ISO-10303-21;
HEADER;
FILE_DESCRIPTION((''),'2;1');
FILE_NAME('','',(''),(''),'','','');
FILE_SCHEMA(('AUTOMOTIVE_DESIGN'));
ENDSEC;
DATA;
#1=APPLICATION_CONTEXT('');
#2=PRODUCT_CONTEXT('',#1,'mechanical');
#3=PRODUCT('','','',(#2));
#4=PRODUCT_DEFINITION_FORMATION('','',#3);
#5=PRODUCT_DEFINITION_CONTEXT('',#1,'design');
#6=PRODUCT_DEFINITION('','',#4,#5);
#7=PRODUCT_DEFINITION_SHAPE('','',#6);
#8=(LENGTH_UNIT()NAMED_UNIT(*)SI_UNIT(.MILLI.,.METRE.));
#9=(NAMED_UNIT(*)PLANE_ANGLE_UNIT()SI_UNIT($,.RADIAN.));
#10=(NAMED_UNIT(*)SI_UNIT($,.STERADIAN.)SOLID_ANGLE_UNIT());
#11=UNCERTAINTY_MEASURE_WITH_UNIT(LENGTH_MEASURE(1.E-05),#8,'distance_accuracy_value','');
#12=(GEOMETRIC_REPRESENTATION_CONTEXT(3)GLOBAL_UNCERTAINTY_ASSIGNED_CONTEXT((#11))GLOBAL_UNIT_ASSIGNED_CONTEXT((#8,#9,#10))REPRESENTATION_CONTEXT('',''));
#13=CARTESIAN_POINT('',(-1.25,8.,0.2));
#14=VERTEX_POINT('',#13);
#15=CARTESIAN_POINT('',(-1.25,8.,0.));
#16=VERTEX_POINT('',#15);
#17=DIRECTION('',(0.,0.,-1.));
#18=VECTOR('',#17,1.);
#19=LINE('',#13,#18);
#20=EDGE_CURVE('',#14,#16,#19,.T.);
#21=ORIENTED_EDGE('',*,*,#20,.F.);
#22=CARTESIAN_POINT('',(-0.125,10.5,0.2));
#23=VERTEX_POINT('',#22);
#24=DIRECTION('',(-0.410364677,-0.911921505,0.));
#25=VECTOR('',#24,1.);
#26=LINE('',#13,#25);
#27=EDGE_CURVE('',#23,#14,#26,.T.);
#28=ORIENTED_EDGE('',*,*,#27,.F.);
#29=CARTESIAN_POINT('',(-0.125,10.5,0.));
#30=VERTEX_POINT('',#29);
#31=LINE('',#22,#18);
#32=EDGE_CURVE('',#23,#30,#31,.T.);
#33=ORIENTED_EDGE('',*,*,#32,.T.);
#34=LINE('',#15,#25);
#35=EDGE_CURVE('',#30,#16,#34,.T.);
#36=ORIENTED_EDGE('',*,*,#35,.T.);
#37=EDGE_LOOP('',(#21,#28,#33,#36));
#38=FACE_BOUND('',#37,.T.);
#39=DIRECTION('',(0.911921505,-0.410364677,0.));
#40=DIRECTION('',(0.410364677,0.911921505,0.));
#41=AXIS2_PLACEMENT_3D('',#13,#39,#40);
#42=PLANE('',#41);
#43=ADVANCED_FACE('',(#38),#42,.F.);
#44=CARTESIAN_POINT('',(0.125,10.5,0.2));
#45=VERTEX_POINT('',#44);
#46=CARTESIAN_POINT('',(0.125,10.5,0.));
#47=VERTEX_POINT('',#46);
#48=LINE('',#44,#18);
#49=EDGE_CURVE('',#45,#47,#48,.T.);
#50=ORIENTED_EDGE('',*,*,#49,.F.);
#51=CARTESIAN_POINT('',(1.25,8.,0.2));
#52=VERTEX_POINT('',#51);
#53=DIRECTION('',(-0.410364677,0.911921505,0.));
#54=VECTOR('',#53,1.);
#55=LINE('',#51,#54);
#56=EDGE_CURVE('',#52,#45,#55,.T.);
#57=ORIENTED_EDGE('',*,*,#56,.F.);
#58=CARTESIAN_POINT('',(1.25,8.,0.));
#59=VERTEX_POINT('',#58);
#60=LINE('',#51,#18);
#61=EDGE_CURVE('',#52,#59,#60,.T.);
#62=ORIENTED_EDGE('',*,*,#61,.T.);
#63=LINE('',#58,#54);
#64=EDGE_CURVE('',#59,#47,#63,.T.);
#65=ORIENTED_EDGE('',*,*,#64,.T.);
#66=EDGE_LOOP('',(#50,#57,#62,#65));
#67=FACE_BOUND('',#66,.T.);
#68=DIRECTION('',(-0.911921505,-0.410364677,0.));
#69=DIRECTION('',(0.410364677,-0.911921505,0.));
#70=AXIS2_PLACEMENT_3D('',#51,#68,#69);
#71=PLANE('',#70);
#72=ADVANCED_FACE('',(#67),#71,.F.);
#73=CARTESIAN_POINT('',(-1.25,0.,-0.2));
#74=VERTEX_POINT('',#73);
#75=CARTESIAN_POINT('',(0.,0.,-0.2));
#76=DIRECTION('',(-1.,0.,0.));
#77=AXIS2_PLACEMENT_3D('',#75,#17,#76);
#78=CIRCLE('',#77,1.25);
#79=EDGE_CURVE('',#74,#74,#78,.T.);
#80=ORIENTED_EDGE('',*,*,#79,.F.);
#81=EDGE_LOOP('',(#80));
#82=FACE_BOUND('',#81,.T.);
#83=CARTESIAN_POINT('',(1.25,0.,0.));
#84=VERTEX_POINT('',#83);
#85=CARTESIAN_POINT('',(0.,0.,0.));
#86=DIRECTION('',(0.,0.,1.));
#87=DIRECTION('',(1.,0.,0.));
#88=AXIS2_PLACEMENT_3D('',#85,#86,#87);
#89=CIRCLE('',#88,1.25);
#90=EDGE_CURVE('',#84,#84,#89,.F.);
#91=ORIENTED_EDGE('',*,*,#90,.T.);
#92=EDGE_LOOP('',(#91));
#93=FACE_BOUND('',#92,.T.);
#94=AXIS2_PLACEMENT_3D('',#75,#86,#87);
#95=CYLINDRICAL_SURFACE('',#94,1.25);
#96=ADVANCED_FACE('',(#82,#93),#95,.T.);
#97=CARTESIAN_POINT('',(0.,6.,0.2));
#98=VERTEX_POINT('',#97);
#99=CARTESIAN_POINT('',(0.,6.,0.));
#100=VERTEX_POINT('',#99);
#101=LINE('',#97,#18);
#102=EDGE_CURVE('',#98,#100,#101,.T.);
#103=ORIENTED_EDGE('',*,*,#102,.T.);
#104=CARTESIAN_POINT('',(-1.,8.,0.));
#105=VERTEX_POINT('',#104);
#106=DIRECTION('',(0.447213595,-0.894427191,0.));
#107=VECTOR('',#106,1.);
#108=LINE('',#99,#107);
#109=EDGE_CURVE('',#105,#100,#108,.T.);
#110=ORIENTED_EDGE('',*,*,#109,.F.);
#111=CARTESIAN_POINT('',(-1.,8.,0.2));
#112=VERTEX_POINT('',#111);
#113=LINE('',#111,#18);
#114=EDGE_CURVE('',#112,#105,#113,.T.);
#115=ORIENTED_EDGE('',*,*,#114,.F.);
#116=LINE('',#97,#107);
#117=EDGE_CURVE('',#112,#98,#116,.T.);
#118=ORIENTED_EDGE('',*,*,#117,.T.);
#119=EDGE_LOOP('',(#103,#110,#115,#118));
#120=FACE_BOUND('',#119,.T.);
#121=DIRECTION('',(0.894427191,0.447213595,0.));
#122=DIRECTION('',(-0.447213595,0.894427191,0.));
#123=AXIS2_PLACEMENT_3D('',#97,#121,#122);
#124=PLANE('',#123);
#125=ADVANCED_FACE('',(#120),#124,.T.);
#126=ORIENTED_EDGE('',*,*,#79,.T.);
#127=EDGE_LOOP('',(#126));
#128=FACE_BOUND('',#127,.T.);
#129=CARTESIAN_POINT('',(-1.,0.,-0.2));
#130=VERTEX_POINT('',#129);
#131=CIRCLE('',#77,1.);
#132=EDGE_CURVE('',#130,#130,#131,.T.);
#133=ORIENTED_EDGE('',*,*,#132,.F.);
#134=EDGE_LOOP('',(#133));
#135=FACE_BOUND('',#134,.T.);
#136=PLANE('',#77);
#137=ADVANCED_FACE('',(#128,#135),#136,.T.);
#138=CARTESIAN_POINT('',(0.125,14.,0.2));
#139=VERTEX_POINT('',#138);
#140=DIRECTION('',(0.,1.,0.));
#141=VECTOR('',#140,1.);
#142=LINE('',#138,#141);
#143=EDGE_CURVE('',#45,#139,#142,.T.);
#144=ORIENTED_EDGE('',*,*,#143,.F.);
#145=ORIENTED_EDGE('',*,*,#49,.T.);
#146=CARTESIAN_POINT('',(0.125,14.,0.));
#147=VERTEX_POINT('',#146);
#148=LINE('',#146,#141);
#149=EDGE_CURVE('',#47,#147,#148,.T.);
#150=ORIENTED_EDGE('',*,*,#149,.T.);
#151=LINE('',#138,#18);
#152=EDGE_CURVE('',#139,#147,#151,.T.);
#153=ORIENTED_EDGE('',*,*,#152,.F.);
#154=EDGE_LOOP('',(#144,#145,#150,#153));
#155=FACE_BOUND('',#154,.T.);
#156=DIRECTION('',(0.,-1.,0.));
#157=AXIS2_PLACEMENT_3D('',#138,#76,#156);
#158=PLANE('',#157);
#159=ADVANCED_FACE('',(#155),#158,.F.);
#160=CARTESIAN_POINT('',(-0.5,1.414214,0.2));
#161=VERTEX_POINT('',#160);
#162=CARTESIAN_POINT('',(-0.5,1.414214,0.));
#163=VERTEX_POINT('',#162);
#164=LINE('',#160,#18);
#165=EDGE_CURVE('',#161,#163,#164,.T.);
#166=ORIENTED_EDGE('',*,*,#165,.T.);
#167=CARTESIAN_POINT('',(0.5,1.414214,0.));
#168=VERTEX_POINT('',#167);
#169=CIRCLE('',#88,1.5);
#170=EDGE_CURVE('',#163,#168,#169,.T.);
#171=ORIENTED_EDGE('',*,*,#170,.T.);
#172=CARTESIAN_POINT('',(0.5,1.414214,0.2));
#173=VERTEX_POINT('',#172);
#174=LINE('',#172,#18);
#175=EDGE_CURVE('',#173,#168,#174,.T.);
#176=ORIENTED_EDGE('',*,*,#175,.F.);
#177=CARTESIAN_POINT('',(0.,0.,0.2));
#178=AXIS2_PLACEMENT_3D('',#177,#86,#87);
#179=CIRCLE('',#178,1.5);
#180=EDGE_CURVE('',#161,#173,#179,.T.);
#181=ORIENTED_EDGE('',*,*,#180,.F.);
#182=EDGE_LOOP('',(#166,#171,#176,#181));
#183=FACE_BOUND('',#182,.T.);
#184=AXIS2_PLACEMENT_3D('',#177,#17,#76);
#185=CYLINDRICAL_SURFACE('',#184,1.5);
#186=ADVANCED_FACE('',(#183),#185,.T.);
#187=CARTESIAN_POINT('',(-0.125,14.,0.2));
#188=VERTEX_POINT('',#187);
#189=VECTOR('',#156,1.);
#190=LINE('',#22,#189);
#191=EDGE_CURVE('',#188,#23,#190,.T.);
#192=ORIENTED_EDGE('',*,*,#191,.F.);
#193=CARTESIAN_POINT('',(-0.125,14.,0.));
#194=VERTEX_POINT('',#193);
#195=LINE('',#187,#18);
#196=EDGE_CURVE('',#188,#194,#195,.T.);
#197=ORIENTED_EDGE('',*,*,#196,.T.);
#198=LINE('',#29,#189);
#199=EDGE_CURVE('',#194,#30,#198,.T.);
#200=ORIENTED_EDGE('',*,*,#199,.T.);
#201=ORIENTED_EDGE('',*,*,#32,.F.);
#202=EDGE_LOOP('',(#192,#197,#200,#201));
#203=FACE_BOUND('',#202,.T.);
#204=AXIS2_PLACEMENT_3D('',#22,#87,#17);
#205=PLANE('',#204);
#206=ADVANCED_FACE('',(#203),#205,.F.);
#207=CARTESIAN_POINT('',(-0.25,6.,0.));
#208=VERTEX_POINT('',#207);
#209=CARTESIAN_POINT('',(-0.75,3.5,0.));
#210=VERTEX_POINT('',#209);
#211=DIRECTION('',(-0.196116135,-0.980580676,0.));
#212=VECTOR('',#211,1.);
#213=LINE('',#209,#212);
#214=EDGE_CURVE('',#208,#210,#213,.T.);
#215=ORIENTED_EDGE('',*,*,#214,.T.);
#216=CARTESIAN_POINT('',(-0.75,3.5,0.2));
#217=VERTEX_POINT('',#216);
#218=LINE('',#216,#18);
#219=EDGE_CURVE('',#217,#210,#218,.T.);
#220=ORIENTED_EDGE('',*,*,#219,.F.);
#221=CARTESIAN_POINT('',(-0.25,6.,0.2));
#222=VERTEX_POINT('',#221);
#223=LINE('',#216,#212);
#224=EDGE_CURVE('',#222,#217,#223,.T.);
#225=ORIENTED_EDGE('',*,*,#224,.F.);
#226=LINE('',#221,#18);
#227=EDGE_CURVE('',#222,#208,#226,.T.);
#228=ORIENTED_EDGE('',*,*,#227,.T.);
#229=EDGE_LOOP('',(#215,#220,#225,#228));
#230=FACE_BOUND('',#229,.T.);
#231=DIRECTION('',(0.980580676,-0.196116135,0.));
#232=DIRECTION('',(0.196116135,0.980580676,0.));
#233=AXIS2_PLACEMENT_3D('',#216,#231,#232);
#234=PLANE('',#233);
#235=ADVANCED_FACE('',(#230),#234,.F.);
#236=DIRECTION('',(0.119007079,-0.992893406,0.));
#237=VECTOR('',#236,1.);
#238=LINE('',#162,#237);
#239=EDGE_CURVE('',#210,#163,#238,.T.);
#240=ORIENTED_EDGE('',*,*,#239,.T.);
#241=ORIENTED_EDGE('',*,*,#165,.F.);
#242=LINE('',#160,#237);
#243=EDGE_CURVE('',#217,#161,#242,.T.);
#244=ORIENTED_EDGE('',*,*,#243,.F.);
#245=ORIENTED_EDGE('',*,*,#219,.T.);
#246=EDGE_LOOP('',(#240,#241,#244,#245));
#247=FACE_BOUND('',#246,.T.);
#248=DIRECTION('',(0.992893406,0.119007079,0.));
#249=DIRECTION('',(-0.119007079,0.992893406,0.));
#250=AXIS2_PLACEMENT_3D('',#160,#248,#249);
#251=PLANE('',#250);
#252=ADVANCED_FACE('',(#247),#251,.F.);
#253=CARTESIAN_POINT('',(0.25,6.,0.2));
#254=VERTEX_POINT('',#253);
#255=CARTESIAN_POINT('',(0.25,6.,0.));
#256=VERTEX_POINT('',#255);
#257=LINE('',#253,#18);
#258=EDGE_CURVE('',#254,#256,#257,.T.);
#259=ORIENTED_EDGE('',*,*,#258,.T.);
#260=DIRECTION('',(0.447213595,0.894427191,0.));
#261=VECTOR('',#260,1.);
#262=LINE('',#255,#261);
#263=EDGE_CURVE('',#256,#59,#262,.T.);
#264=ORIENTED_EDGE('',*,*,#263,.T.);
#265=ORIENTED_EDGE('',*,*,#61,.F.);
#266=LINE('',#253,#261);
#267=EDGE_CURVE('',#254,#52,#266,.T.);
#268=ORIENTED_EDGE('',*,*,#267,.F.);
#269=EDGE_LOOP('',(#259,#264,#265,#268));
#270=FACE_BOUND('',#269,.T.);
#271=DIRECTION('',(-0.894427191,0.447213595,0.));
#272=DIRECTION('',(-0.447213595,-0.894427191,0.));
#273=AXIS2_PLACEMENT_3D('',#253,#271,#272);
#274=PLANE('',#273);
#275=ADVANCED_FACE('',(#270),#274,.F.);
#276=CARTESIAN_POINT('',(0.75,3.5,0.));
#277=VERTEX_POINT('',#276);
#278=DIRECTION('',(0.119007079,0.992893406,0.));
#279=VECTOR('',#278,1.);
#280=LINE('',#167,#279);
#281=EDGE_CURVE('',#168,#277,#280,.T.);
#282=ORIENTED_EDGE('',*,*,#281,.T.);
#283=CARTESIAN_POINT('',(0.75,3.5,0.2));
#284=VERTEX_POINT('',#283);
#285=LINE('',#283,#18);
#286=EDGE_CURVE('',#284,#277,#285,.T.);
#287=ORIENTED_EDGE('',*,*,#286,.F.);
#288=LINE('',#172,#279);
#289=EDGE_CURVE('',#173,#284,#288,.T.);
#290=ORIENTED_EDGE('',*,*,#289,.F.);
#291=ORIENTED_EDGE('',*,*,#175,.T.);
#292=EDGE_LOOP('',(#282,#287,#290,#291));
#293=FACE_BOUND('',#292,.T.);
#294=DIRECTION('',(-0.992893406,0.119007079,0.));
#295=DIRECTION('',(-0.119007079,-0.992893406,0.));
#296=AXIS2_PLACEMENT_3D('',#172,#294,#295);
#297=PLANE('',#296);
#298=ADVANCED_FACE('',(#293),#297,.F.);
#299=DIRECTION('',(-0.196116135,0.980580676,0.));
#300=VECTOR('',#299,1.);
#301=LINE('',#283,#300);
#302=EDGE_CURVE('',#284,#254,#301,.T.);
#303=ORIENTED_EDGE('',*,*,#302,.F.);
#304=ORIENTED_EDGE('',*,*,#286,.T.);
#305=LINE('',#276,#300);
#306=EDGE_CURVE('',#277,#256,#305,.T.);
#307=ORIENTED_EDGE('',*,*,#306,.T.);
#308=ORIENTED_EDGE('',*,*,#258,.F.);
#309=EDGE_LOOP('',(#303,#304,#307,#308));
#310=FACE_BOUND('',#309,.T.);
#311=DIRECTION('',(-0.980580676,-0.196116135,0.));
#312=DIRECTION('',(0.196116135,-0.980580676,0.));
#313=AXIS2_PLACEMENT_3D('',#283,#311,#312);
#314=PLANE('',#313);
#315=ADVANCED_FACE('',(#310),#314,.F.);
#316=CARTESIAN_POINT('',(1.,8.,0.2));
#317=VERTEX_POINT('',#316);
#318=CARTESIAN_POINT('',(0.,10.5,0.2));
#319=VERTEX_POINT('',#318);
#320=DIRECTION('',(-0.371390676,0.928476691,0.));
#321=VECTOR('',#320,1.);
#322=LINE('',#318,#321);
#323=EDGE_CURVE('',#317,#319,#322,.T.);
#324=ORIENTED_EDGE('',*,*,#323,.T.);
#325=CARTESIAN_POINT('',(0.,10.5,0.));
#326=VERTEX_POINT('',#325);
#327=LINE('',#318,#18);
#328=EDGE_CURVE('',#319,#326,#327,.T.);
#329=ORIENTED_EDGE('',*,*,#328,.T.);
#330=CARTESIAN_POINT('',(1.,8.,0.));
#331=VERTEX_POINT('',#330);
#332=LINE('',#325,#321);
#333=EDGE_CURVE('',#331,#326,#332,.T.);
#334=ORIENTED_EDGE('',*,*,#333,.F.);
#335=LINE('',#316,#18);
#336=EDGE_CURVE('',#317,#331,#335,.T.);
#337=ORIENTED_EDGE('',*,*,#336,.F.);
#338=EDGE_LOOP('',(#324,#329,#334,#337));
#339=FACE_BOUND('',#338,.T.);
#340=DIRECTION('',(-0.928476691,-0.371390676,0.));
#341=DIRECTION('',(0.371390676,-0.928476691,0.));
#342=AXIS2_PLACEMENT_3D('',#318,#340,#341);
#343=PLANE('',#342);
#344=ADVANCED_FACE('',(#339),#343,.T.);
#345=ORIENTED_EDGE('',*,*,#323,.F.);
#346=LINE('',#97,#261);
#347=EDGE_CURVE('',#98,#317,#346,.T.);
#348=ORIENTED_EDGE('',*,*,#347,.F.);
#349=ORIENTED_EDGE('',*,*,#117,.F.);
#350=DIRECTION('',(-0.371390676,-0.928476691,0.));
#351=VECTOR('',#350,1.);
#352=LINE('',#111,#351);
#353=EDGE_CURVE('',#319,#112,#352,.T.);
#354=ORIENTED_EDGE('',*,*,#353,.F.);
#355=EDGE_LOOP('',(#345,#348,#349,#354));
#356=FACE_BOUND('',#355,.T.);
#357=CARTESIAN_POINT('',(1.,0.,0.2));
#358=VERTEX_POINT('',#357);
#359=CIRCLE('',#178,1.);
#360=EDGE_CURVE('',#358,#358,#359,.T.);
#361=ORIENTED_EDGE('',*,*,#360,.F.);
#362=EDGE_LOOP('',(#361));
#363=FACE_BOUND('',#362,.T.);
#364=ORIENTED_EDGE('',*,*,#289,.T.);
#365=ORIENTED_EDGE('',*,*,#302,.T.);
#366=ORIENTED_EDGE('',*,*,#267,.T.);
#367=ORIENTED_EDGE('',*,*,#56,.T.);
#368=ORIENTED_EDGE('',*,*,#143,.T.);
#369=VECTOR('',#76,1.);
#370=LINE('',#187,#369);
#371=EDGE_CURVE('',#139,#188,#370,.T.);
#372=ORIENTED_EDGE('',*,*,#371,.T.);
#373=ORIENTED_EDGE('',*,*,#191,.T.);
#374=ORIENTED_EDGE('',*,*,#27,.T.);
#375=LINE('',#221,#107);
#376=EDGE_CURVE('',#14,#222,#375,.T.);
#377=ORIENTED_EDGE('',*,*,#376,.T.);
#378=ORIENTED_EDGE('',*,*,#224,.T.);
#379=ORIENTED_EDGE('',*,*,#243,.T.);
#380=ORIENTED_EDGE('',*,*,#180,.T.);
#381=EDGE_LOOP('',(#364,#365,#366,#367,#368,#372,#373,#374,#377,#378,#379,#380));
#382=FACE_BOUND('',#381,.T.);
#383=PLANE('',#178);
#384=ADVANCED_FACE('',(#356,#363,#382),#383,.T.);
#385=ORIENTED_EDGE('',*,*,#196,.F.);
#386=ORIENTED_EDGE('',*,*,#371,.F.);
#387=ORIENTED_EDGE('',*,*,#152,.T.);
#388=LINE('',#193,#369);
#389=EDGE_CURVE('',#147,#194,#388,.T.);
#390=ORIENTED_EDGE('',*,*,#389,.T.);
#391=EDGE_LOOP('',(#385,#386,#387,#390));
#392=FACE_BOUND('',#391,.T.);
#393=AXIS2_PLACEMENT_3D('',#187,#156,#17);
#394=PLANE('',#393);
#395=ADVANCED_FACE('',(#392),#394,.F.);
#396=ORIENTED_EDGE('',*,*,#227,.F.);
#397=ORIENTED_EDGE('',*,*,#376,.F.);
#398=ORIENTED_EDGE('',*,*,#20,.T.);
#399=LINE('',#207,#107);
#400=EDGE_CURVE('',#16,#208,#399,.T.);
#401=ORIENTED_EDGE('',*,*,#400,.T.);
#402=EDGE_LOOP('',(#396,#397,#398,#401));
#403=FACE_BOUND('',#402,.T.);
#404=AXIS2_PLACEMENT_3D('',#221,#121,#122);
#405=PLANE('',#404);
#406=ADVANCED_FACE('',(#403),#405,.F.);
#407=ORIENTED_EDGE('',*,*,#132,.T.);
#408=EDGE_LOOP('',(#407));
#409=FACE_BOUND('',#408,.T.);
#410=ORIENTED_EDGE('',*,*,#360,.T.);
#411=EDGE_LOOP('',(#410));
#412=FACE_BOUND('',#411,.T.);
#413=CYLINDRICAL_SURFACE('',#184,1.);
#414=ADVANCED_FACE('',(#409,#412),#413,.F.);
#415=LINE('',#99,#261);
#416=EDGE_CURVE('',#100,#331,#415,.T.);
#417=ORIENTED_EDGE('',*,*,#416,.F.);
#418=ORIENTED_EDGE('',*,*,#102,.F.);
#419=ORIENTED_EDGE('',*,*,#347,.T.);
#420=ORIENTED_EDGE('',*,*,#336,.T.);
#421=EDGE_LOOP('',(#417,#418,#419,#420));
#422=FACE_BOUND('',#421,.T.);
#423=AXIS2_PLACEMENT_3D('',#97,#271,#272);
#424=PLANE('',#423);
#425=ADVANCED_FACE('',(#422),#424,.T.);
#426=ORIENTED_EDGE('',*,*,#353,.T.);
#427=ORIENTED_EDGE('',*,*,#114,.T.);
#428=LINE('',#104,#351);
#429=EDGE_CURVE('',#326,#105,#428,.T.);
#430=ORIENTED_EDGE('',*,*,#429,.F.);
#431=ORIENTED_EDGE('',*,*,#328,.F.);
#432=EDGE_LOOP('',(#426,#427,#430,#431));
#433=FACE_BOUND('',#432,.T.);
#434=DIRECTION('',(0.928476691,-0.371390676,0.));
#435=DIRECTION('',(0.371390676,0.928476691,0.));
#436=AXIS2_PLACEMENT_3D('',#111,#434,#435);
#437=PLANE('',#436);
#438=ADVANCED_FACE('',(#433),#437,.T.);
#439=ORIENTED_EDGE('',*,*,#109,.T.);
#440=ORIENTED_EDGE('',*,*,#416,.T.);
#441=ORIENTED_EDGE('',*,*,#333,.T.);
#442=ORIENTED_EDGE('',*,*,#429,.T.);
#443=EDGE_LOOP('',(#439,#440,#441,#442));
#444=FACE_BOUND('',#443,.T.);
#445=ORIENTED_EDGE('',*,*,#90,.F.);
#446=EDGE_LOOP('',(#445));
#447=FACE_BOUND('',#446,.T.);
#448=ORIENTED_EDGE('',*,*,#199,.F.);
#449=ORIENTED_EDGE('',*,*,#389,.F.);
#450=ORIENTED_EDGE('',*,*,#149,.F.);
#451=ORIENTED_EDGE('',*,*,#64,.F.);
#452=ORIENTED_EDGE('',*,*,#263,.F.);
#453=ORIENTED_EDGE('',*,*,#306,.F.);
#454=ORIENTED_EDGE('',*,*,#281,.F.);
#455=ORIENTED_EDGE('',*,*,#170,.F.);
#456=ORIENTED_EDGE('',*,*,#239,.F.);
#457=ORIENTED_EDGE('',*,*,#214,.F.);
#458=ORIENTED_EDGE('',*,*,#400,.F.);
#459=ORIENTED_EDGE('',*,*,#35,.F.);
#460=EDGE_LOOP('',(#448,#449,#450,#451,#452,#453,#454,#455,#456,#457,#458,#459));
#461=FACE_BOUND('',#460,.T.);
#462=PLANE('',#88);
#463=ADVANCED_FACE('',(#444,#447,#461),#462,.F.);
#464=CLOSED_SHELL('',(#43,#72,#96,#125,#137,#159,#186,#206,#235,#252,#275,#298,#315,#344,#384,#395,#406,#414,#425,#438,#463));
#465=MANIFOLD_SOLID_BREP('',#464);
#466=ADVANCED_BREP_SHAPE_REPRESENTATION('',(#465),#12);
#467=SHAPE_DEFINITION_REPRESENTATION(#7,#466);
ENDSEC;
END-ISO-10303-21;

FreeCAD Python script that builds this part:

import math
import FreeCAD as App
import Part
import Sketcher
Q = App.Units.Quantity

doc = App.newDocument("Part")
body = doc.addObject("PartDesign::Body", "Body")

sketch1 = doc.addObject("Sketcher::SketchObject", "Sketch")
body.addObject(sketch1)
sketch1.AttachmentSupport = (doc.XY_Plane, [""])
sketch1.MapMode = "FlatFace"
sketch1.addGeometry([
    Part.LineSegment(App.Vector(0.5, 1.41, 0), App.Vector(0.75, 3.5, 0)),
    Part.LineSegment(App.Vector(0.75, 3.5, 0), App.Vector(0.25, 6, 0)),
    Part.LineSegment(App.Vector(0.25, 6, 0), App.Vector(1.25, 8, 0)),
    Part.LineSegment(App.Vector(1.25, 8, 0), App.Vector(0.12, 10.5, 0)),
    Part.LineSegment(App.Vector(0.12, 10.5, 0), App.Vector(0.12, 14, 0)),
    Part.LineSegment(App.Vector(0.12, 14, 0), App.Vector(-0.12, 14, 0)),
    Part.LineSegment(App.Vector(-0.12, 14, 0), App.Vector(-0.12, 10.5, 0)),
    Part.LineSegment(App.Vector(-0.12, 10.5, 0), App.Vector(-1.25, 8, 0)),
    Part.LineSegment(App.Vector(-1.25, 8, 0), App.Vector(-0.25, 6, 0)),
    Part.LineSegment(App.Vector(-0.25, 6, 0), App.Vector(-0.75, 3.5, 0)),
    Part.LineSegment(App.Vector(-0.75, 3.5, 0), App.Vector(-0.5, 1.41, 0)),
    Part.ArcOfCircle(Part.Circle(App.Vector(0, 0, 0), App.Vector(0, 0, 1), 1.5), math.radians(109), math.radians(431)),
    Part.Circle(App.Vector(0, 0, 0), App.Vector(0, 0, 1), 1),
    Part.LineSegment(App.Vector(1, 8, 0), App.Vector(0, 6, 0)),
    Part.LineSegment(App.Vector(0, 6, 0), App.Vector(-1, 8, 0)),
    Part.LineSegment(App.Vector(-1, 8, 0), App.Vector(0, 10.5, 0)),
    Part.LineSegment(App.Vector(0, 10.5, 0), App.Vector(1, 8, 0)),
], False)
sketch1.addConstraint([
    Sketcher.Constraint("Coincident", 0, 2, 1, 1),
    Sketcher.Constraint("Coincident", 1, 2, 2, 1),
    Sketcher.Constraint("Coincident", 2, 2, 3, 1),
    Sketcher.Constraint("Coincident", 3, 2, 4, 1),
    Sketcher.Constraint("Coincident", 4, 2, 5, 1),
    Sketcher.Constraint("Coincident", 5, 2, 6, 1),
    Sketcher.Constraint("Coincident", 6, 2, 7, 1),
    Sketcher.Constraint("Coincident", 7, 2, 8, 1),
    Sketcher.Constraint("Coincident", 8, 2, 9, 1),
    Sketcher.Constraint("Coincident", 9, 2, 10, 1),
    Sketcher.Constraint("Coincident", 10, 2, 11, 1),
    Sketcher.Constraint("Coincident", 11, 2, 0, 1),
    Sketcher.Constraint("Coincident", 13, 2, 14, 1),
    Sketcher.Constraint("Coincident", 14, 2, 15, 1),
    Sketcher.Constraint("Coincident", 15, 2, 16, 1),
    Sketcher.Constraint("Coincident", 16, 2, 13, 1),
    Sketcher.Constraint("Vertical", 4),
    Sketcher.Constraint("Horizontal", 5),
    Sketcher.Constraint("Vertical", 6),
    Sketcher.Constraint("Coincident", 11, 3, -1, 1),
    Sketcher.Constraint("Coincident", 12, 3, -1, 1),
    Sketcher.Constraint("Symmetric", 3, 2, 6, 2, -2),
    Sketcher.Constraint("Symmetric", 2, 2, 7, 2, -2),
    Sketcher.Constraint("Symmetric", 1, 2, 8, 2, -2),
    Sketcher.Constraint("Symmetric", 0, 2, 9, 2, -2),
    Sketcher.Constraint("Symmetric", 14, 2, 16, 2, -2),
    Sketcher.Constraint("PointOnObject", 13, 2, -2),
    Sketcher.Constraint("PointOnObject", 15, 2, -2),
    Sketcher.Constraint("Parallel", 2, 13),
    Sketcher.Constraint("Horizontal", 10, 2, 11, 2),
    Sketcher.Constraint("Horizontal", 8, 2, 13, 2),
    Sketcher.Constraint("Horizontal", 7, 2, 14, 2),
    Sketcher.Constraint("Horizontal", 6, 2, 15, 2),
    Sketcher.Constraint("Diameter", 12, Q("2 mm")),
    Sketcher.Constraint("Radius", 11, Q("1.5 mm")),
    Sketcher.Constraint("DistanceY", 4, 1, 4, 2, Q("3.5 mm")),
    Sketcher.Constraint("DistanceY", -1, 1, 1, 2, Q("6 mm")),
    Sketcher.Constraint("DistanceY", -1, 1, 2, 2, Q("8 mm")),
    Sketcher.Constraint("DistanceY", -1, 1, 4, 2, Q("14 mm")),
    Sketcher.Constraint("DistanceX", 14, 2, -1, 1, Q("1 mm")),
    Sketcher.Constraint("DistanceY", 0, 2, 3, 2, Q("7 mm")),
    Sketcher.Constraint("DistanceX", 7, 2, 0, 2, Q("2 mm")),
    Sketcher.Constraint("DistanceX", 10, 2, 11, 2, Q("1 mm")),
    Sketcher.Constraint("DistanceX", 5, 2, 5, 1, Q("0.25 mm")),
    Sketcher.Constraint("DistanceX", 1, 2, 0, 2, Q("0.5 mm")),
])
pad1 = doc.addObject("PartDesign::Pad", "Pad")
body.addObject(pad1)
pad1.Profile = sketch1
pad1.Length = 0.2

sketch2 = doc.addObject("Sketcher::SketchObject", "Sketch001")
body.addObject(sketch2)
sketch2.AttachmentSupport = (doc.XY_Plane, [""])
sketch2.MapMode = "FlatFace"
sketch2.addGeometry([
    Part.Circle(App.Vector(0, 0, 0), App.Vector(0, 0, 1), 1.2),
    Part.Circle(App.Vector(0, 0, 0), App.Vector(0, 0, 1), 1),
], False)
sketch2.addConstraint([
    Sketcher.Constraint("Coincident", 0, 3, -1, 1),
    Sketcher.Constraint("Coincident", 1, 3, -1, 1),
    Sketcher.Constraint("Diameter", 1, Q("2 mm")),
    Sketcher.Constraint("Diameter", 0, Q("2.5 mm")),
])
pad2 = doc.addObject("PartDesign::Pad", "Pad001")
body.addObject(pad2)
pad2.Profile = sketch2
pad2.Length = 0.2
pad2.Reversed = True

doc.recompute()
